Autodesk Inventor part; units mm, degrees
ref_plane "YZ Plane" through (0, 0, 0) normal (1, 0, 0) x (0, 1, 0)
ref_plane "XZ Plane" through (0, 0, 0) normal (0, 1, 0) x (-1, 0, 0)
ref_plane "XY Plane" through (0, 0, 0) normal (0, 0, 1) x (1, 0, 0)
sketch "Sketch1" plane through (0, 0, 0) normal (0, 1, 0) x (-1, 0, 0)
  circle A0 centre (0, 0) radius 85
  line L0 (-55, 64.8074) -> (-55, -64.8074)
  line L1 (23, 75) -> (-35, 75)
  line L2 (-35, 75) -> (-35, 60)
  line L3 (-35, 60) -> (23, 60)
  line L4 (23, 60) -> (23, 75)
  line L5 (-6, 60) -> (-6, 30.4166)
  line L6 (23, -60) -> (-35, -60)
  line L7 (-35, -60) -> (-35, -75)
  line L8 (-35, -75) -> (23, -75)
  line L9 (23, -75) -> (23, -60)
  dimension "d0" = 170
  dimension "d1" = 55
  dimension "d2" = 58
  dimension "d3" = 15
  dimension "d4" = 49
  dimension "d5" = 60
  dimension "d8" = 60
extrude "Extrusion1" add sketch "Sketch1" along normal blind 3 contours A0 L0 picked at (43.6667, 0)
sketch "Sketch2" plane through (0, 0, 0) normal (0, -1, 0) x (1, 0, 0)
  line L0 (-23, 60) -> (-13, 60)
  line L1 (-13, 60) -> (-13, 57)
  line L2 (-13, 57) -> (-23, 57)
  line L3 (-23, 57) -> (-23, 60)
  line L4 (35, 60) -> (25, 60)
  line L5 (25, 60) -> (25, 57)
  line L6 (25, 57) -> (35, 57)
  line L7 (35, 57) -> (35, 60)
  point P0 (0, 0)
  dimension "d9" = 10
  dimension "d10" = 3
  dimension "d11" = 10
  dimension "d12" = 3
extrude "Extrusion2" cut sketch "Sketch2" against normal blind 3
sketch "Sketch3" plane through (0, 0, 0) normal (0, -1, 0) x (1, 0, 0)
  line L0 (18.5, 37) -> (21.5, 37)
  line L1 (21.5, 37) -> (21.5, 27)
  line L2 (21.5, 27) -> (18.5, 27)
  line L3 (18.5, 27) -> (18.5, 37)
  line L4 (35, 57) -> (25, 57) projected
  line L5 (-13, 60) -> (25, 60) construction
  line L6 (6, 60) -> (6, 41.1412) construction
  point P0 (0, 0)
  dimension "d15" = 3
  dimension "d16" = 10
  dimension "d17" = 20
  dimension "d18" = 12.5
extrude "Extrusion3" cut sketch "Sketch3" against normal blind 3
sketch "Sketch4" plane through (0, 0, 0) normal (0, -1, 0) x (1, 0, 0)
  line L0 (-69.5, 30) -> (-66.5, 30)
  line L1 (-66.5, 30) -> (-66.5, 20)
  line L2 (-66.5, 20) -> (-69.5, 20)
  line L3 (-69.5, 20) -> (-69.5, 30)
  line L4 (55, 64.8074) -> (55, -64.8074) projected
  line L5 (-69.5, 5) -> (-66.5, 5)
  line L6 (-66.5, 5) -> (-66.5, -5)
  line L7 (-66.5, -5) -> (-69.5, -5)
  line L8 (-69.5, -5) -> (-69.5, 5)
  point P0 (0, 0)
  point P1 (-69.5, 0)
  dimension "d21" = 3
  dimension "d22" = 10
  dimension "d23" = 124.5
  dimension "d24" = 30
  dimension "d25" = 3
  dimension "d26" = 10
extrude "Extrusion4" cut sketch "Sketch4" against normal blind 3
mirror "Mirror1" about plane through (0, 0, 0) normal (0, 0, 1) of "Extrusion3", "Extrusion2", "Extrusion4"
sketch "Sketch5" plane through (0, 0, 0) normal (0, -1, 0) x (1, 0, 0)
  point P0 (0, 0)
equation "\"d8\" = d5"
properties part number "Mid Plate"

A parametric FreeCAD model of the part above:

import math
import FreeCAD as App
import Part
import Sketcher
Q = App.Units.Quantity


def add_polygon(sketch, points):
    """Adds a closed chain of lines whose ends are joined by coincident constraints."""
    first, n = sketch.GeometryCount, len(points)
    for a, b in zip(points, points[1:] + points[:1]):
        sketch.addGeometry(Part.LineSegment(App.Vector(*a, 0), App.Vector(*b, 0)), False)
    for i in range(n):
        sketch.addConstraint(Sketcher.Constraint("Coincident", first + i, 2, first + (i + 1) % n, 1))

doc = App.newDocument("Part")
body = doc.addObject("PartDesign::Body", "Body")

# Sketch on XZ plane
sketch1 = body.newObject("Sketcher::SketchObject", "Sketch")
sketch1.AttachmentSupport = (doc.getObject("XZ_Plane"), [""])
sketch1.MapMode = "FlatFace"
sketch1.addGeometry(Part.ArcOfCircle(Part.Circle(App.Vector(0, 0, 0), App.Vector(0, 0, 1), 85), math.radians(50), math.radians(310)), False)  # 0
sketch1.addGeometry(Part.LineSegment(App.Vector(55, -65, 0), App.Vector(55, 65, 0)), False)  # 1
add_polygon(sketch1, [(35, -60), (-23, -60), (-23, -75), (35, -75)])  # lines 2-5
add_polygon(sketch1, [(35, 75), (-23, 75), (-23, 60), (35, 60)])  # lines 6-9
sketch1.addConstraint([
    Sketcher.Constraint("Coincident", 0, 1, 1, 2),
    Sketcher.Constraint("Coincident", 1, 1, 0, 2),
    Sketcher.Constraint("Vertical", 1),
    Sketcher.Constraint("Horizontal", 2),
    Sketcher.Constraint("Vertical", 3),
    Sketcher.Constraint("Horizontal", 4),
    Sketcher.Constraint("Vertical", 5),
    Sketcher.Constraint("Horizontal", 6),
    Sketcher.Constraint("Vertical", 7),
    Sketcher.Constraint("Horizontal", 8),
    Sketcher.Constraint("Vertical", 9),
    Sketcher.Constraint("Coincident", 0, 3, -1, 1),
    Sketcher.Constraint("Symmetric", 3, 2, 6, 2, -1),
    Sketcher.Constraint("Symmetric", 5, 2, 8, 2, -1),
    Sketcher.Constraint("Radius", 0, Q("85 mm")),
    Sketcher.Constraint("DistanceX", 2, 2, 2, 1, Q("58 mm")),
    Sketcher.Constraint("DistanceY", 3, 2, 3, 1, Q("15 mm")),
    Sketcher.Constraint("DistanceX", -1, 1, 0, 1, Q("55 mm")),
    Sketcher.Constraint("DistanceY", 2, 2, -1, 1, Q("60 mm")),
    Sketcher.Constraint("DistanceX", 2, 2, -1, 1, Q("23 mm")),
])
pad1 = body.newObject("PartDesign::Pad", "Pad")
pad1.Profile = sketch1
pad1.Length = 3
pad1.Reversed = True

# Sketch on XZ plane
sketch2 = body.newObject("Sketcher::SketchObject", "Sketch001")
sketch2.AttachmentSupport = (doc.getObject("XZ_Plane"), [""])
sketch2.MapMode = "FlatFace"
add_polygon(sketch2, [(-13, 60), (-23, 60), (-23, 57), (-13, 57)])  # lines 0-3
add_polygon(sketch2, [(35, 57), (35, 60), (25, 60), (25, 57)])  # lines 4-7
sketch2.addConstraint([
    Sketcher.Constraint("Horizontal", 0),
    Sketcher.Constraint("Vertical", 1),
    Sketcher.Constraint("Horizontal", 2),
    Sketcher.Constraint("Vertical", 3),
    Sketcher.Constraint("Vertical", 4),
    Sketcher.Constraint("Horizontal", 5),
    Sketcher.Constraint("Vertical", 6),
    Sketcher.Constraint("Horizontal", 7),
    Sketcher.Constraint("Horizontal", 3, 2, 4, 2),
    Sketcher.Constraint("Horizontal", 2, 2, 6, 2),
    Sketcher.Constraint("Equal", 2, 5),
    Sketcher.Constraint("DistanceX", 0, 2, 0, 1, Q("10 mm")),
    Sketcher.Constraint("DistanceY", 1, 2, 1, 1, Q("3 mm")),
    Sketcher.Constraint("DistanceX", 0, 2, -1, 1, Q("23 mm")),
    Sketcher.Constraint("DistanceY", -1, 1, 0, 2, Q("60 mm")),
    Sketcher.Constraint("DistanceX", -1, 1, 4, 2, Q("35 mm")),
])
pocket1 = body.newObject("PartDesign::Pocket", "Pocket")
pocket1.Profile = sketch2
pocket1.Length = 3

# Sketch on XZ plane
sketch3 = body.newObject("Sketcher::SketchObject", "Sketch002")
sketch3.AttachmentSupport = (doc.getObject("XZ_Plane"), [""])
sketch3.MapMode = "FlatFace"
add_polygon(sketch3, [(21.5, 37), (18.5, 37), (18.5, 27), (21.5, 27)])  # lines 0-3
sketch3.addConstraint([
    Sketcher.Constraint("Horizontal", 0),
    Sketcher.Constraint("Vertical", 1),
    Sketcher.Constraint("Horizontal", 2),
    Sketcher.Constraint("Vertical", 3),
    Sketcher.Constraint("DistanceX", 0, 2, 0, 1, Q("3 mm")),
    Sketcher.Constraint("DistanceY", 1, 2, 1, 1, Q("10 mm")),
    Sketcher.Constraint("DistanceY", -1, 1, 0, 2, Q("37 mm")),
    Sketcher.Constraint("DistanceX", -1, 1, 0, 2, Q("18.5 mm")),
])
pocket2 = body.newObject("PartDesign::Pocket", "Pocket001")
pocket2.Profile = sketch3
pocket2.Length = 3

# Sketch on XZ plane
sketch4 = body.newObject("Sketcher::SketchObject", "Sketch003")
sketch4.AttachmentSupport = (doc.getObject("XZ_Plane"), [""])
sketch4.MapMode = "FlatFace"
add_polygon(sketch4, [(-66.5, 30), (-69.5, 30), (-69.5, 20), (-66.5, 20)])  # lines 0-3
add_polygon(sketch4, [(-66.5, 5), (-69.5, 5), (-69.5, -5), (-66.5, -5)])  # lines 4-7
sketch4.addConstraint([
    Sketcher.Constraint("Horizontal", 0),
    Sketcher.Constraint("Vertical", 1),
    Sketcher.Constraint("Horizontal", 2),
    Sketcher.Constraint("Vertical", 3),
    Sketcher.Constraint("Horizontal", 4),
    Sketcher.Constraint("Vertical", 5),
    Sketcher.Constraint("Horizontal", 6),
    Sketcher.Constraint("Vertical", 7),
    Sketcher.Constraint("Vertical", 1, 2, 4, 2),
    Sketcher.Constraint("Vertical", 3, 2, 6, 2),
    Sketcher.Constraint("Equal", 3, 5),
    Sketcher.Constraint("DistanceX", 0, 2, 0, 1, Q("3 mm")),
    Sketcher.Constraint("DistanceY", 1, 2, 1, 1, Q("10 mm")),
    Sketcher.Constraint("DistanceY", -1, 1, 0, 2, Q("30 mm")),
    Sketcher.Constraint("DistanceY", -1, 1, 4, 2, Q("5 mm")),
    Sketcher.Constraint("DistanceX", 0, 2, -1, 1, Q("69.5 mm")),
])
pocket3 = body.newObject("PartDesign::Pocket", "Pocket002")
pocket3.Profile = sketch4
pocket3.Length = 3
doc.recompute()

mirrored = body.newObject("PartDesign::Mirrored", "Mirrored")
mirrored.Originals = [pocket2, pocket1, pocket3]
mirrored.MirrorPlane = (doc.getObject("XY_Plane"), [""])
body.Tip = mirrored

doc.recompute()
